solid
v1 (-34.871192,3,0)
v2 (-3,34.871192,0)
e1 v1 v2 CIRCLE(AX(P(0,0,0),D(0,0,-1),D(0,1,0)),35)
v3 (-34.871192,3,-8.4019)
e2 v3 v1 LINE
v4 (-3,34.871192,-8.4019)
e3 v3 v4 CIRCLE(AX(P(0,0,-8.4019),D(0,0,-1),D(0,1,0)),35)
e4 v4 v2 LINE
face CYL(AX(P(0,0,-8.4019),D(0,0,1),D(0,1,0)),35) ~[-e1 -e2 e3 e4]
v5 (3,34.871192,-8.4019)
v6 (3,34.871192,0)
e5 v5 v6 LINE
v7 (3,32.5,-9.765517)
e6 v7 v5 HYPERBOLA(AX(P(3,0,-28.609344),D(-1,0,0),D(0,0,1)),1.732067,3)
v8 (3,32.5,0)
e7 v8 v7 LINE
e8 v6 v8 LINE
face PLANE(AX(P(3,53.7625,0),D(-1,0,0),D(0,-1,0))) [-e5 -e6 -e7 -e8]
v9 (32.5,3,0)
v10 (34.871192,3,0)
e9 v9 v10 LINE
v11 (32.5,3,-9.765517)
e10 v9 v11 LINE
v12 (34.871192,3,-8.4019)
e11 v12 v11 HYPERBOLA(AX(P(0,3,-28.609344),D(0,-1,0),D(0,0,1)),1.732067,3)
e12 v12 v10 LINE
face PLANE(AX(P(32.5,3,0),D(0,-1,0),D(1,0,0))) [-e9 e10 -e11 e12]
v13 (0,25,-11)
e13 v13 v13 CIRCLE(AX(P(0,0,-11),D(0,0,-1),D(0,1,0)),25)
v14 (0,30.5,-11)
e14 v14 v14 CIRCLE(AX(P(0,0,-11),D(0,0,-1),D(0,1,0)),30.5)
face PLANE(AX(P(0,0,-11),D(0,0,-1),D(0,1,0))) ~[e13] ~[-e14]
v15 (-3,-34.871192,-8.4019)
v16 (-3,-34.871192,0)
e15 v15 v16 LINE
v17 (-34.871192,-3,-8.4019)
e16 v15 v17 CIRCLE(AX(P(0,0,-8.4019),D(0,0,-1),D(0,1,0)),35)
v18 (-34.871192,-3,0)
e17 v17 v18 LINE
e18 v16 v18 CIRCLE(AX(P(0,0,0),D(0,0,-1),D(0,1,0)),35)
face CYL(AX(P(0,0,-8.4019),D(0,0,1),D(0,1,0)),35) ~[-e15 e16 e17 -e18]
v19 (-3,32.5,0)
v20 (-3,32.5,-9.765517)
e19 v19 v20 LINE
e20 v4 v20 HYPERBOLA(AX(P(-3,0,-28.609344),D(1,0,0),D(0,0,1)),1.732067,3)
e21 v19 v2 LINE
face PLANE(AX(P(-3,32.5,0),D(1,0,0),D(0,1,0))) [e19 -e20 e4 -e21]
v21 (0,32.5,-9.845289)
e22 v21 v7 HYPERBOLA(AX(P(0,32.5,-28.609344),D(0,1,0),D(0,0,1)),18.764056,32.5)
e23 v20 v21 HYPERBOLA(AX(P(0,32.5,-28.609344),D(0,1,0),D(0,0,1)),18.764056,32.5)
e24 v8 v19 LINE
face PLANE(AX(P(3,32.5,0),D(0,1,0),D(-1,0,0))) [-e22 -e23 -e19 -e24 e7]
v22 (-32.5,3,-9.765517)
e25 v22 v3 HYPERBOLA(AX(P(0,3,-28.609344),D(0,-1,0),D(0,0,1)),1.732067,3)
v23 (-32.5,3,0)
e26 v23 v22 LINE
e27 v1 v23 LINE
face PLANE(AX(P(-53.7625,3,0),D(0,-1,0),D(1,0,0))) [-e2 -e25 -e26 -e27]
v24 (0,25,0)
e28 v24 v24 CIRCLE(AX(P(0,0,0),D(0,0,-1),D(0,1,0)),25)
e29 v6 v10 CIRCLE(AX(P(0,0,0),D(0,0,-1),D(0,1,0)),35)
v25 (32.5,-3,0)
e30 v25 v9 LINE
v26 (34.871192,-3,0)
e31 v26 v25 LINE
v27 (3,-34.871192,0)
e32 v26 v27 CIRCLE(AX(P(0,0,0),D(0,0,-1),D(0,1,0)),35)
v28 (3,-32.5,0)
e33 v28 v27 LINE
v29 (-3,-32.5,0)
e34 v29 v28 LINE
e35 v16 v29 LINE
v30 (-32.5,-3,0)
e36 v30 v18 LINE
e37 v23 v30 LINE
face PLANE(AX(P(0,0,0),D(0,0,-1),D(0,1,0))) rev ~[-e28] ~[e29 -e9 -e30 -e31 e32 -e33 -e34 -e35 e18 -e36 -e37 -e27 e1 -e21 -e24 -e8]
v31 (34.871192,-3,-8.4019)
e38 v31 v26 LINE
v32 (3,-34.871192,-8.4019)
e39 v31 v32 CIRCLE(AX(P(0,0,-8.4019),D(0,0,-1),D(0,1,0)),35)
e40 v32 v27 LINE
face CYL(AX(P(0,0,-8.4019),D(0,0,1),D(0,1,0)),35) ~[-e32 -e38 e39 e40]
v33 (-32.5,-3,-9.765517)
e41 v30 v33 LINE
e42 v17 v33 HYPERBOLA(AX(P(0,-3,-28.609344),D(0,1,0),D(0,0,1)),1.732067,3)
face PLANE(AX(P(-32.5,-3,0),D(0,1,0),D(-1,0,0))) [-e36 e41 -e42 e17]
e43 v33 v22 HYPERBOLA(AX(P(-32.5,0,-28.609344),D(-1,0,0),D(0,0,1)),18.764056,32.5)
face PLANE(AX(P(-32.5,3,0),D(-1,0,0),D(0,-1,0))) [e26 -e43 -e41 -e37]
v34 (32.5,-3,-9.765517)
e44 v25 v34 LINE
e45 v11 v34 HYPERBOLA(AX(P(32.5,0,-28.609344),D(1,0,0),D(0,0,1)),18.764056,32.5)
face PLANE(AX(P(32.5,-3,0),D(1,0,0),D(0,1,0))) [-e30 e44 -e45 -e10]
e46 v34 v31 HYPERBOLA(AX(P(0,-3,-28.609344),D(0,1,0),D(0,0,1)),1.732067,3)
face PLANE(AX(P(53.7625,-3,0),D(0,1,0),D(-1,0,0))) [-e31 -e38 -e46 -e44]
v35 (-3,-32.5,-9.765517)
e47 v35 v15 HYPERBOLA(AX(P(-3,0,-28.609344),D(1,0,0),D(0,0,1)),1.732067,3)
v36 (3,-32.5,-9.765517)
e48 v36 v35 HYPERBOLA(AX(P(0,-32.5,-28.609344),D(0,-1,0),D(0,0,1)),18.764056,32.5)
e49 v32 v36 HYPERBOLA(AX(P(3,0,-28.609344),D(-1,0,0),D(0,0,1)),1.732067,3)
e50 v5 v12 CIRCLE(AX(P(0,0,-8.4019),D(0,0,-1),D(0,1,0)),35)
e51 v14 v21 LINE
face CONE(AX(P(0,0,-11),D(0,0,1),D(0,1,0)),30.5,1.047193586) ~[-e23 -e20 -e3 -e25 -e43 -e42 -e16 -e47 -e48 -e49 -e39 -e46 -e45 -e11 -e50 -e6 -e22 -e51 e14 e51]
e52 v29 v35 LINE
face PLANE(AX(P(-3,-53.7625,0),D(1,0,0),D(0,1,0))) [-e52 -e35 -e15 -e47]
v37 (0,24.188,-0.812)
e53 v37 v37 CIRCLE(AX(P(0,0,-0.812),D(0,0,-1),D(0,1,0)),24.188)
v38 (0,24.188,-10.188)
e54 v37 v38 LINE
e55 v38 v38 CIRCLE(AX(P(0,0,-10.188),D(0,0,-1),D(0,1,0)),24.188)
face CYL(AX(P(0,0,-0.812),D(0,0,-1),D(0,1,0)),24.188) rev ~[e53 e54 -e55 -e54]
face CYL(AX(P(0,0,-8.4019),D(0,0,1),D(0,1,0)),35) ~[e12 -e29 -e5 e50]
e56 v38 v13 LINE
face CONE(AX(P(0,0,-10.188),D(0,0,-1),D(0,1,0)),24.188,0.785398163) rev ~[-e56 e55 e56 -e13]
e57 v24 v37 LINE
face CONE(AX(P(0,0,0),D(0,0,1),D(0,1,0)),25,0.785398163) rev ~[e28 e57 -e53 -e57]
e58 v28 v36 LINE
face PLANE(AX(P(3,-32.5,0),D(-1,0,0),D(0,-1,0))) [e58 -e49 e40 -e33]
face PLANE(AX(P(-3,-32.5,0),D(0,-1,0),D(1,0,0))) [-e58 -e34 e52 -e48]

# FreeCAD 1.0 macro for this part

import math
import FreeCAD as App
import Part
import Sketcher
from FreeCAD import Vector
Q = App.Units.Quantity


def add_polygon(sketch, points):
    """Adds a closed chain of lines whose ends are joined by coincident constraints."""
    first, n = sketch.GeometryCount, len(points)
    for a, b in zip(points, points[1:] + points[:1]):
        sketch.addGeometry(Part.LineSegment(App.Vector(*a, 0), App.Vector(*b, 0)), False)
    for i in range(n):
        sketch.addConstraint(Sketcher.Constraint("Coincident", first + i, 2, first + (i + 1) % n, 1))

doc = App.newDocument("Part")
body = doc.addObject("PartDesign::Body", "Body")

# Sketch on YZ plane
sketch1 = body.newObject("Sketcher::SketchObject", "Sketch")
sketch1.AttachmentSupport = (doc.getObject("YZ_Plane"), [""])
sketch1.MapMode = "FlatFace"
add_polygon(sketch1, [(35, 0), (25, 0), (24.188, -0.812), (24.188, -10.188), (25, -11), (30.5, -11), (35, -8.4019)])  # lines 0-6
sketch1.addConstraint([
    Sketcher.Constraint("Horizontal", 0),
    Sketcher.Constraint("Vertical", 2),
    Sketcher.Constraint("Horizontal", 4),
    Sketcher.Constraint("Vertical", 6),
    Sketcher.Constraint("PointOnObject", 0, 2, -1),
    Sketcher.Constraint("Perpendicular", 1, 3),
    Sketcher.Constraint("Vertical", 0, 2, 3, 2),
    Sketcher.Constraint("Equal", 1, 3),
    Sketcher.Constraint("DistanceX", 0, 2, 0, 1, 10.0),
    Sketcher.Constraint("Angle", 5, Q("30.0002 deg")),
    Sketcher.Constraint("DistanceX", 4, 1, 4, 2, 5.5),
    Sketcher.Constraint("DistanceX", -1, 1, 0, 2, 25.0),
    Sketcher.Constraint("DistanceY", 3, 2, -1, 1, 11.0),
    Sketcher.Constraint("DistanceY", 2, 2, 2, 1, 9.376),
])
revolution = body.newObject("PartDesign::Revolution", "Revolution")
revolution.Profile = sketch1
revolution.ReferenceAxis = (sketch1, ["V_Axis"])
revolution.Angle = 360

# Sketch on XY plane
sketch2 = body.newObject("Sketcher::SketchObject", "Sketch001")
sketch2.AttachmentSupport = (doc.getObject("XY_Plane"), [""])
sketch2.MapMode = "FlatFace"
sketch2.addGeometry([
    Part.Circle(Vector(0, 0, 0), Vector(0, 0, 1), 70),  # 0
    Part.ArcOfCircle(Part.Circle(Vector(0, 0, 0), Vector(0, 0, 1), 53.846136), math.radians(-176.806152), math.radians(-93.193848)),  # 1
    Part.LineSegment(Vector(-53.7625, -3, 0), Vector(-32.5, -3, 0)),  # 2
    Part.LineSegment(Vector(-32.5, -3, 0), Vector(-32.5, 3, 0)),  # 3
    Part.LineSegment(Vector(-32.5, 3, 0), Vector(-53.7625, 3, 0)),  # 4
    Part.ArcOfCircle(Part.Circle(Vector(0, 0, 0), Vector(0, 0, 1), 53.846136), math.radians(93.193848), math.radians(176.806152)),  # 5
    Part.LineSegment(Vector(-3, 53.7625, 0), Vector(-3, 32.5, 0)),  # 6
    Part.LineSegment(Vector(-3, 32.5, 0), Vector(3, 32.5, 0)),  # 7
    Part.LineSegment(Vector(3, 32.5, 0), Vector(3, 53.7625, 0)),  # 8
    Part.ArcOfCircle(Part.Circle(Vector(0, 0, 0), Vector(0, 0, 1), 53.846136), math.radians(3.193848), math.radians(86.806152)),  # 9
    Part.LineSegment(Vector(53.7625, 3, 0), Vector(32.5, 3, 0)),  # 10
    Part.LineSegment(Vector(32.5, 3, 0), Vector(32.5, -3, 0)),  # 11
    Part.LineSegment(Vector(32.5, -3, 0), Vector(53.7625, -3, 0)),  # 12
    Part.ArcOfCircle(Part.Circle(Vector(0, 0, 0), Vector(0, 0, 1), 53.846136), math.radians(-86.806152), math.radians(-3.193848)),  # 13
    Part.LineSegment(Vector(3, -53.7625, 0), Vector(3, -32.5, 0)),  # 14
    Part.LineSegment(Vector(3, -32.5, 0), Vector(-3, -32.5, 0)),  # 15
    Part.LineSegment(Vector(-3, -32.5, 0), Vector(-3, -53.7625, 0)),  # 16
], False)
sketch2.addConstraint([
    Sketcher.Constraint("Coincident", 1, 1, 2, 1),
    Sketcher.Constraint("Coincident", 2, 2, 3, 1),
    Sketcher.Constraint("Coincident", 3, 2, 4, 1),
    Sketcher.Constraint("Coincident", 4, 2, 5, 2),
    Sketcher.Constraint("Coincident", 5, 1, 6, 1),
    Sketcher.Constraint("Coincident", 6, 2, 7, 1),
    Sketcher.Constraint("Coincident", 7, 2, 8, 1),
    Sketcher.Constraint("Coincident", 8, 2, 9, 2),
    Sketcher.Constraint("Coincident", 9, 1, 10, 1),
    Sketcher.Constraint("Coincident", 10, 2, 11, 1),
    Sketcher.Constraint("Coincident", 11, 2, 12, 1),
    Sketcher.Constraint("Coincident", 12, 2, 13, 2),
    Sketcher.Constraint("Coincident", 13, 1, 14, 1),
    Sketcher.Constraint("Coincident", 14, 2, 15, 1),
    Sketcher.Constraint("Coincident", 15, 2, 16, 1),
    Sketcher.Constraint("Coincident", 16, 2, 1, 2),
    Sketcher.Constraint("Horizontal", 2),
    Sketcher.Constraint("Vertical", 3),
    Sketcher.Constraint("Horizontal", 4),
    Sketcher.Constraint("Vertical", 6),
    Sketcher.Constraint("Horizontal", 7),
    Sketcher.Constraint("Vertical", 8),
    Sketcher.Constraint("Horizontal", 10),
    Sketcher.Constraint("Vertical", 11),
    Sketcher.Constraint("Horizontal", 12),
    Sketcher.Constraint("Vertical", 14),
    Sketcher.Constraint("Horizontal", 15),
    Sketcher.Constraint("Vertical", 16),
    Sketcher.Constraint("Coincident", 0, 3, -1, 1),
    Sketcher.Constraint("Coincident", 1, 3, -1, 1),
    Sketcher.Constraint("Coincident", 5, 3, -1, 1),
    Sketcher.Constraint("Coincident", 9, 3, -1, 1),
    Sketcher.Constraint("Coincident", 13, 3, -1, 1),
    Sketcher.Constraint("Equal", 1, 5),
    Sketcher.Constraint("Equal", 5, 9),
    Sketcher.Constraint("Equal", 9, 13),
    Sketcher.Constraint("Symmetric", 2, 2, 10, 2, -1, 1),
    Sketcher.Constraint("Symmetric", 6, 2, 14, 2, -1, 1),
    Sketcher.Constraint("Horizontal", 5, 1, 8, 2),
    Sketcher.Constraint("Horizontal", 4, 2, 9, 1),
    Sketcher.Constraint("Horizontal", 2, 2, 11, 2),
    Sketcher.Constraint("Horizontal", 13, 1, 16, 2),
    Sketcher.Constraint("Equal", 15, 3),
    Sketcher.Constraint("Equal", 12, 6),
    Sketcher.Constraint("Diameter", 0, 140.0),
    Sketcher.Constraint("DistanceX", 7, 1, 7, 2, 6.0),
    Sketcher.Constraint("DistanceX", 2, 2, -1, 1, 32.5),
    Sketcher.Constraint("Radius", 1, 53.8461),
])
pocket1 = body.newObject("PartDesign::Pocket", "Pocket")
pocket1.Profile = sketch2
pocket1.Length = 11

doc.recompute()
